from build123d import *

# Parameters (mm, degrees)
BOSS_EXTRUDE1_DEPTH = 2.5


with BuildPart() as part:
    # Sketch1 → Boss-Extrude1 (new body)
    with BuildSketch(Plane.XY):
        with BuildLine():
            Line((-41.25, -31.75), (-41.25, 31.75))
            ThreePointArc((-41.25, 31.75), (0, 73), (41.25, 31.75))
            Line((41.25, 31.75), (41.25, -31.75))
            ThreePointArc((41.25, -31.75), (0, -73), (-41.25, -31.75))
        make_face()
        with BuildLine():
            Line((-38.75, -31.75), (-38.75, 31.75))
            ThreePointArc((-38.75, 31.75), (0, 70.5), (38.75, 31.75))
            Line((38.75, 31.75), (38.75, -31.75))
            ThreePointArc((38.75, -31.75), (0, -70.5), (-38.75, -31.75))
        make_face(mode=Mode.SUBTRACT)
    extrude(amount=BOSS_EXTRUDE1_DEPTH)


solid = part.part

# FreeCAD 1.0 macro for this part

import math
import FreeCAD as App
import Part
import Sketcher

V = App.Vector

doc = App.newDocument("Part")
body = doc.addObject("PartDesign::Body", "Body")

sketch1 = body.newObject("Sketcher::SketchObject", "Sketch")
sketch1.AttachmentSupport = (doc.getObject("XY_Plane"), [""])
sketch1.MapMode = "FlatFace"
sketch1.addGeometry([
    Part.LineSegment(V(-41, 32, 0), V(-41, -32, 0)),
    Part.ArcOfCircle(Part.Circle(V(0, -32, 0), V(0, 0, 1), 41), math.radians(180), math.radians(360)),
    Part.LineSegment(V(41, -32, 0), V(41, 32, 0)),
    Part.ArcOfCircle(Part.Circle(V(0, 32, 0), V(0, 0, 1), 41), math.radians(0), math.radians(180)),
    Part.LineSegment(V(-39, -32, 0), V(-39, 32, 0)),
    Part.ArcOfCircle(Part.Circle(V(0, 32, 0), V(0, 0, 1), 39), math.radians(0), math.radians(180)),
    Part.LineSegment(V(39, 32, 0), V(39, -32, 0)),
    Part.ArcOfCircle(Part.Circle(V(0, -32, 0), V(0, 0, 1), 39), math.radians(180), math.radians(360)),
], False)
sketch1.addConstraint([
    Sketcher.Constraint("Tangent", 0, 2, 1, 1),
    Sketcher.Constraint("Tangent", 1, 2, 2, 1),
    Sketcher.Constraint("Tangent", 2, 2, 3, 1),
    Sketcher.Constraint("Tangent", 3, 2, 0, 1),
    Sketcher.Constraint("Tangent", 4, 2, 5, 2),
    Sketcher.Constraint("Tangent", 5, 1, 6, 1),
    Sketcher.Constraint("Tangent", 6, 2, 7, 2),
    Sketcher.Constraint("Tangent", 7, 1, 4, 1),
    Sketcher.Constraint("Vertical", 0),
    Sketcher.Constraint("Vertical", 2),
    Sketcher.Constraint("Vertical", 4),
    Sketcher.Constraint("Vertical", 6),
    Sketcher.Constraint("Coincident", 5, 3, 3, 3),
    Sketcher.Constraint("Symmetric", 1, 3, 3, 3, -1, 1),
    Sketcher.Constraint("Horizontal", 7, 3, 0, 2),
    Sketcher.Constraint("Radius", 1, 41.25),
    Sketcher.Constraint("Radius", 5, 38.75),
    Sketcher.Constraint("DistanceY", 0, 2, 0, 1, 63.5),
])
pad1 = body.newObject("PartDesign::Pad", "Pad")
pad1.Profile = sketch1
pad1.Length = 2.5

doc.recompute()
